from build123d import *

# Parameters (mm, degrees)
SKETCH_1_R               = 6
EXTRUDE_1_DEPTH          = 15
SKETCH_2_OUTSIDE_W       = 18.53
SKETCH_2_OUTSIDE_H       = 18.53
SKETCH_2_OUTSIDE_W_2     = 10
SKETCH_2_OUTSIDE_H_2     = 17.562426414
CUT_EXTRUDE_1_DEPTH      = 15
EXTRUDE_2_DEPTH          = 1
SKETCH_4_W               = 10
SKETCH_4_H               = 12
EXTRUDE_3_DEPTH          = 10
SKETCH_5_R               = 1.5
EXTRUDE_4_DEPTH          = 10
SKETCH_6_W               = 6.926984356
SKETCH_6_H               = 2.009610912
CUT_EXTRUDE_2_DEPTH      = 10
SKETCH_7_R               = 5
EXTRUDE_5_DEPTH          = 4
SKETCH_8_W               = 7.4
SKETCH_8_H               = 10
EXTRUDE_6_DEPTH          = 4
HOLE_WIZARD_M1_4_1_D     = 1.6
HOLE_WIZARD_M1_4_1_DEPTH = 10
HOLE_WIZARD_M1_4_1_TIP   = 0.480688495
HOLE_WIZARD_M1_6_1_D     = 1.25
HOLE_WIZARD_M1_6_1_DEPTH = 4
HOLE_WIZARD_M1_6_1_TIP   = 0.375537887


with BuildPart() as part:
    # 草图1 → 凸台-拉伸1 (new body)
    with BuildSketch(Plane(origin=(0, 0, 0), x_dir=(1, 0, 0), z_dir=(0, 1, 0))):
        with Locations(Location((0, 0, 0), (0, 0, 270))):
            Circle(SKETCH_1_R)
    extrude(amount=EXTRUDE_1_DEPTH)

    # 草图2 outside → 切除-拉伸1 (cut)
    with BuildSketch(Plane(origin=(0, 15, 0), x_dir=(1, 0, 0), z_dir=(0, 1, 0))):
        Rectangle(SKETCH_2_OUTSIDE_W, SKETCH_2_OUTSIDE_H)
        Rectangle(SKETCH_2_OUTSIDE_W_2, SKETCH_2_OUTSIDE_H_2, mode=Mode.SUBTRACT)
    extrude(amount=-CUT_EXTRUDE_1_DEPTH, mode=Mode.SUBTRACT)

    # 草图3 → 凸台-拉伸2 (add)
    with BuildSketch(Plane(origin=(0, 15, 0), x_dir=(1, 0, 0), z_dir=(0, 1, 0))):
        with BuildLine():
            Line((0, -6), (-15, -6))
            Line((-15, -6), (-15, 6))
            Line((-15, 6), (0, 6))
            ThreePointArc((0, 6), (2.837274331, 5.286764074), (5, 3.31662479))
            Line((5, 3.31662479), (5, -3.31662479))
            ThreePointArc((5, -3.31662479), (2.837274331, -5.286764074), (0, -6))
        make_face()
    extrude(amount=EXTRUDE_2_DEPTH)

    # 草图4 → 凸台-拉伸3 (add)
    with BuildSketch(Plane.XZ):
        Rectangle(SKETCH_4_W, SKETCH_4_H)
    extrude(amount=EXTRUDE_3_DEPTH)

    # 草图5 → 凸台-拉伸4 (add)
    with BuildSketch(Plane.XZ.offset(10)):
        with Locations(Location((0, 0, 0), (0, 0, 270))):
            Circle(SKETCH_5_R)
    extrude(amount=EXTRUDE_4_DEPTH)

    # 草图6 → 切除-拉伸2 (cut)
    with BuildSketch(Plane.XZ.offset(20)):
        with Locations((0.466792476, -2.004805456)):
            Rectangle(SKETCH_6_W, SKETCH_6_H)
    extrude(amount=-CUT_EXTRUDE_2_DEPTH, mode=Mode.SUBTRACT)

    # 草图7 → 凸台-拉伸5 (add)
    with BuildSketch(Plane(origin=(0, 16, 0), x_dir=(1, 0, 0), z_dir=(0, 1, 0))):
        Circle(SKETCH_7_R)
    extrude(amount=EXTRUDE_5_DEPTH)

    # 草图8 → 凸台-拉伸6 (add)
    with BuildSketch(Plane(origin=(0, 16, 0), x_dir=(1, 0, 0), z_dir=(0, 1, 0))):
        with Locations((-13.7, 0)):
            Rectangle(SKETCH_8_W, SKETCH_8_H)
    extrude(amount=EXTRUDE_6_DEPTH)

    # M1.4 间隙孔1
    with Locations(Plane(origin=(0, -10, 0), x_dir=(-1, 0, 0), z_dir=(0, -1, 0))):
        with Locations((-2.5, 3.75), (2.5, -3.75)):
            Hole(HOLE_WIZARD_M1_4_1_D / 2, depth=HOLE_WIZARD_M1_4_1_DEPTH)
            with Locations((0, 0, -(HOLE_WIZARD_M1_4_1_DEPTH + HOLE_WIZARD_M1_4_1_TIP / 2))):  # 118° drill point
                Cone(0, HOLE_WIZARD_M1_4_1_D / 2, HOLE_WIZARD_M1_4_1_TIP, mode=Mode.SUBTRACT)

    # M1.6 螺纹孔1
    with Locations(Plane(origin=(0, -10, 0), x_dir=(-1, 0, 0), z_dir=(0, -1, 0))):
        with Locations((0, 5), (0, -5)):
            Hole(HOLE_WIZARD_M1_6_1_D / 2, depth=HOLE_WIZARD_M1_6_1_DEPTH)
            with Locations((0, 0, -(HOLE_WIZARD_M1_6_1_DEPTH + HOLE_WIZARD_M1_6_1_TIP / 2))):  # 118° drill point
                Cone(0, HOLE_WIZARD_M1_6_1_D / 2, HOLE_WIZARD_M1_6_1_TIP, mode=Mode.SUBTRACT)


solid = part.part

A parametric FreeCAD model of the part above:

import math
import FreeCAD as App
import Part
import Sketcher

V = App.Vector
Q = App.Units.Quantity


def add_polygon(sketch, points):
    """Adds a closed chain of lines whose ends are joined by coincident constraints."""
    first, n = sketch.GeometryCount, len(points)
    for a, b in zip(points, points[1:] + points[:1]):
        sketch.addGeometry(Part.LineSegment(App.Vector(*a, 0), App.Vector(*b, 0)), False)
    for i in range(n):
        sketch.addConstraint(Sketcher.Constraint("Coincident", first + i, 2, first + (i + 1) % n, 1))

doc = App.newDocument("Part")
body = doc.addObject("PartDesign::Body", "Body")

# Sketch on XZ plane
sketch1 = doc.addObject("Sketcher::SketchObject", "Sketch")
body.addObject(sketch1)
sketch1.AttachmentSupport = (doc.XZ_Plane, [""])
sketch1.MapMode = "FlatFace"
sketch1.addGeometry(Part.Circle(V(0, 0, 0), V(0, 0, 1), 6), False)
sketch1.addConstraint([
    Sketcher.Constraint("Coincident", 0, 3, -1, 1),
    Sketcher.Constraint("Diameter", 0, Q("12 mm")),
])
pad1 = doc.addObject("PartDesign::Pad", "Pad")
body.addObject(pad1)
pad1.Profile = sketch1
pad1.Length = 15
pad1.Reversed = True

# Sketch on XZ plane
sketch2 = doc.addObject("Sketcher::SketchObject", "Sketch001")
body.addObject(sketch2)
sketch2.AttachmentSupport = (doc.XZ_Plane, [""])
sketch2.MapMode = "FlatFace"
sketch2.AttachmentOffset = App.Placement(V(0, 0, -15), App.Rotation())
add_polygon(sketch2, [(-9.265, -9.265), (-9.265, 9.265), (9.265, 9.265), (9.265, -9.265)])  # lines 0-3
add_polygon(sketch2, [(5, 8.781213), (-5, 8.781213), (-5, -8.781213), (5, -8.781213)])  # lines 4-7
sketch2.addConstraint([
    Sketcher.Constraint("Vertical", 0),
    Sketcher.Constraint("Horizontal", 1),
    Sketcher.Constraint("Vertical", 2),
    Sketcher.Constraint("Horizontal", 3),
    Sketcher.Constraint("Horizontal", 4),
    Sketcher.Constraint("Vertical", 5),
    Sketcher.Constraint("Horizontal", 6),
    Sketcher.Constraint("Vertical", 7),
    Sketcher.Constraint("Symmetric", 0, 2, 2, 2, -1, 1),
    Sketcher.Constraint("Symmetric", 4, 2, 6, 2, -1, 1),
    Sketcher.Constraint("Equal", 3, 0),
    Sketcher.Constraint("DistanceX", 4, 2, 4, 1, Q("10 mm")),
    Sketcher.Constraint("DistanceX", 1, 1, 1, 2, Q("18.53 mm")),
    Sketcher.Constraint("DistanceY", 5, 2, 5, 1, Q("17.562426 mm")),
])
pocket1 = doc.addObject("PartDesign::Pocket", "Pocket")
body.addObject(pocket1)
pocket1.Profile = sketch2
pocket1.Length = 15
pocket1.Reversed = True

# Sketch on XZ plane
sketch3 = doc.addObject("Sketcher::SketchObject", "Sketch002")
body.addObject(sketch3)
sketch3.AttachmentSupport = (doc.XZ_Plane, [""])
sketch3.MapMode = "FlatFace"
sketch3.AttachmentOffset = App.Placement(V(0, 0, -15), App.Rotation())
sketch3.addGeometry([
    Part.LineSegment(V(-15, 6, 0), V(0, 6, 0)),  # 0
    Part.ArcOfCircle(Part.Circle(V(0, 0, 0), V(0, 0, 1), 6), math.radians(33.55731), math.radians(90)),  # 1
    Part.LineSegment(V(5, 3.316625, 0), V(5, -3.316625, 0)),  # 2
    Part.ArcOfCircle(Part.Circle(V(0, 0, 0), V(0, 0, 1), 6), math.radians(-90), math.radians(-33.55731)),  # 3
    Part.LineSegment(V(0, -6, 0), V(-15, -6, 0)),  # 4
    Part.LineSegment(V(-15, -6, 0), V(-15, 6, 0)),  # 5
], False)
sketch3.addConstraint([
    Sketcher.Constraint("Tangent", 0, 2, 1, 2),
    Sketcher.Constraint("Coincident", 1, 1, 2, 1),
    Sketcher.Constraint("Coincident", 2, 2, 3, 2),
    Sketcher.Constraint("Tangent", 3, 1, 4, 1),
    Sketcher.Constraint("Coincident", 4, 2, 5, 1),
    Sketcher.Constraint("Coincident", 5, 2, 0, 1),
    Sketcher.Constraint("Horizontal", 0),
    Sketcher.Constraint("Vertical", 2),
    Sketcher.Constraint("Horizontal", 4),
    Sketcher.Constraint("Vertical", 5),
    Sketcher.Constraint("Coincident", 1, 3, -1, 1),
    Sketcher.Constraint("Coincident", 3, 3, -1, 1),
    Sketcher.Constraint("Equal", 1, 3),
    Sketcher.Constraint("Radius", 1, Q("6 mm")),
    Sketcher.Constraint("DistanceX", 0, 1, 0, 2, Q("15 mm")),
    Sketcher.Constraint("DistanceX", -1, 1, 1, 1, Q("5 mm")),
])
pad2 = doc.addObject("PartDesign::Pad", "Pad001")
body.addObject(pad2)
pad2.Profile = sketch3
pad2.Length = 1
pad2.Reversed = True

# Sketch on XZ plane
sketch4 = doc.addObject("Sketcher::SketchObject", "Sketch003")
body.addObject(sketch4)
sketch4.AttachmentSupport = (doc.XZ_Plane, [""])
sketch4.MapMode = "FlatFace"
add_polygon(sketch4, [(-5, 6), (-5, -6), (5, -6), (5, 6)])  # lines 0-3
sketch4.addConstraint([
    Sketcher.Constraint("Vertical", 0),
    Sketcher.Constraint("Horizontal", 1),
    Sketcher.Constraint("Vertical", 2),
    Sketcher.Constraint("Horizontal", 3),
    Sketcher.Constraint("Symmetric", 0, 2, 2, 2, -1, 1),
    Sketcher.Constraint("DistanceX", 1, 1, 1, 2, Q("10 mm")),
    Sketcher.Constraint("DistanceY", 0, 2, 0, 1, Q("12 mm")),
])
pad3 = doc.addObject("PartDesign::Pad", "Pad002")
body.addObject(pad3)
pad3.Profile = sketch4
pad3.Length = 10

# Sketch on XZ plane
sketch5 = doc.addObject("Sketcher::SketchObject", "Sketch004")
body.addObject(sketch5)
sketch5.AttachmentSupport = (doc.XZ_Plane, [""])
sketch5.MapMode = "FlatFace"
sketch5.AttachmentOffset = App.Placement(V(0, 0, 10), App.Rotation())
sketch5.addGeometry(Part.Circle(V(0, 0, 0), V(0, 0, 1), 1.5), False)
sketch5.addConstraint([
    Sketcher.Constraint("Coincident", 0, 3, -1, 1),
    Sketcher.Constraint("Diameter", 0, Q("3 mm")),
])
pad4 = doc.addObject("PartDesign::Pad", "Pad003")
body.addObject(pad4)
pad4.Profile = sketch5
pad4.Length = 10

# Sketch on XZ plane
sketch6 = doc.addObject("Sketcher::SketchObject", "Sketch005")
body.addObject(sketch6)
sketch6.AttachmentSupport = (doc.XZ_Plane, [""])
sketch6.MapMode = "FlatFace"
sketch6.AttachmentOffset = App.Placement(V(0, 0, 20), App.Rotation())
add_polygon(sketch6, [(-2.9967, -1), (-2.9967, -3.009611), (3.930285, -3.009611), (3.930285, -1)])  # lines 0-3
sketch6.addConstraint([
    Sketcher.Constraint("Vertical", 0),
    Sketcher.Constraint("Horizontal", 1),
    Sketcher.Constraint("Vertical", 2),
    Sketcher.Constraint("Horizontal", 3),
    Sketcher.Constraint("DistanceY", 2, 2, -1, 1, Q("1 mm")),
    Sketcher.Constraint("DistanceY", 0, 2, 0, 1, Q("2.009611 mm")),
    Sketcher.Constraint("DistanceX", 0, 2, -1, 1, Q("2.9967 mm")),
    Sketcher.Constraint("DistanceX", 1, 1, 1, 2, Q("6.926984 mm")),
])
pocket2 = doc.addObject("PartDesign::Pocket", "Pocket001")
body.addObject(pocket2)
pocket2.Profile = sketch6
pocket2.Length = 10

# Sketch on XZ plane
sketch7 = doc.addObject("Sketcher::SketchObject", "Sketch006")
body.addObject(sketch7)
sketch7.AttachmentSupport = (doc.XZ_Plane, [""])
sketch7.MapMode = "FlatFace"
sketch7.AttachmentOffset = App.Placement(V(0, 0, -16), App.Rotation())
sketch7.addGeometry(Part.Circle(V(0, 0, 0), V(0, 0, 1), 5), False)
sketch7.addConstraint([
    Sketcher.Constraint("Coincident", 0, 3, -1, 1),
    Sketcher.Constraint("Diameter", 0, Q("10 mm")),
])
pad5 = doc.addObject("PartDesign::Pad", "Pad004")
body.addObject(pad5)
pad5.Profile = sketch7
pad5.Length = 4
pad5.Reversed = True

# Sketch on XZ plane
sketch8 = doc.addObject("Sketcher::SketchObject", "Sketch007")
body.addObject(sketch8)
sketch8.AttachmentSupport = (doc.XZ_Plane, [""])
sketch8.MapMode = "FlatFace"
sketch8.AttachmentOffset = App.Placement(V(0, 0, -16), App.Rotation())
add_polygon(sketch8, [(-17.4, -5), (-17.4, 5), (-10, 5), (-10, -5)])  # lines 0-3
sketch8.addConstraint([
    Sketcher.Constraint("Vertical", 0),
    Sketcher.Constraint("Horizontal", 1),
    Sketcher.Constraint("Vertical", 2),
    Sketcher.Constraint("Horizontal", 3),
    Sketcher.Constraint("DistanceY", 0, 1, 0, 2, Q("10 mm")),
    Sketcher.Constraint("DistanceX", 1, 1, 1, 2, Q("7.4 mm")),
    Sketcher.Constraint("DistanceY", -1, 1, 0, 2, Q("5 mm")),
    Sketcher.Constraint("DistanceX", 1, 2, -1, 1, Q("10 mm")),
])
pad6 = doc.addObject("PartDesign::Pad", "Pad005")
body.addObject(pad6)
pad6.Profile = sketch8
pad6.Length = 4
pad6.Reversed = True

# Sketch on XZ plane
sketch9 = doc.addObject("Sketcher::SketchObject", "Sketch008")
body.addObject(sketch9)
sketch9.AttachmentSupport = (doc.XZ_Plane, [""])
sketch9.MapMode = "FlatFace"
sketch9.AttachmentOffset = App.Placement(V(0, 0, 10), App.Rotation())
sketch9.addGeometry([
    Part.Circle(V(2.5, -3.75, 0), V(0, 0, 1), 0.8),
    Part.Circle(V(-2.5, 3.75, 0), V(0, 0, 1), 0.8),
], False)
sketch9.addConstraint([
    Sketcher.Constraint("Equal", 0, 1),
    Sketcher.Constraint("Symmetric", 0, 3, 1, 3, -1, 1),
    Sketcher.Constraint("Diameter", 0, Q("1.6 mm")),
    Sketcher.Constraint("DistanceX", 1, 3, 0, 3, Q("5 mm")),
    Sketcher.Constraint("DistanceY", 0, 3, 1, 3, Q("7.5 mm")),
])
doc.recompute()
hole = doc.addObject("PartDesign::Hole", "Hole")
body.addObject(hole)
hole.Profile = sketch9
hole.ThreadType = "None"
hole.Diameter = 1.6
hole.DepthType = "Dimension"
hole.Depth = 10
hole.DrillPoint = "Angled"
hole.DrillPointAngle = 118

# Sketch on XZ plane
sketch10 = doc.addObject("Sketcher::SketchObject", "Sketch009")
body.addObject(sketch10)
sketch10.AttachmentSupport = (doc.XZ_Plane, [""])
sketch10.MapMode = "FlatFace"
sketch10.AttachmentOffset = App.Placement(V(0, 0, 10), App.Rotation())
sketch10.addGeometry([
    Part.Circle(V(0, -5, 0), V(0, 0, 1), 0.625),
    Part.Circle(V(0, 5, 0), V(0, 0, 1), 0.625),
], False)
sketch10.addConstraint([
    Sketcher.Constraint("Equal", 0, 1),
    Sketcher.Constraint("Symmetric", 0, 3, 1, 3, -1, 1),
    Sketcher.Constraint("PointOnObject", 0, 3, -2),
    Sketcher.Constraint("Diameter", 0, Q("1.25 mm")),
    Sketcher.Constraint("DistanceY", 0, 3, -1, 1, Q("5 mm")),
])
doc.recompute()
hole2 = doc.addObject("PartDesign::Hole", "Hole001")
body.addObject(hole2)
hole2.Profile = sketch10
hole2.ThreadType = "None"
hole2.Diameter = 1.25
hole2.DepthType = "Dimension"
hole2.Depth = 4
hole2.DrillPoint = "Angled"
hole2.DrillPointAngle = 118

doc.recompute()
